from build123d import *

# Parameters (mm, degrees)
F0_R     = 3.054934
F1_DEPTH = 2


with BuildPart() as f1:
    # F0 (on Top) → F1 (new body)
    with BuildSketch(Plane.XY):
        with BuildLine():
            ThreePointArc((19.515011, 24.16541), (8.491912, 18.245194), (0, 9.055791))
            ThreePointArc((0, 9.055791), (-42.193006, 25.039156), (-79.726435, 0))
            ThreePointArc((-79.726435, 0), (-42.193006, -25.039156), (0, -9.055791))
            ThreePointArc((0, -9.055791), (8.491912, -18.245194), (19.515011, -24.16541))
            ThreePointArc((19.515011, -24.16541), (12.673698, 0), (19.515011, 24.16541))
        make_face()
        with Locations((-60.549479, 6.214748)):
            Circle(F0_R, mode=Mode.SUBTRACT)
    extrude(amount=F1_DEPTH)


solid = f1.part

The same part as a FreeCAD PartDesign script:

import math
import FreeCAD as App
import Part
import Sketcher
from FreeCAD import Vector
Q = App.Units.Quantity

doc = App.newDocument("Part")
body = doc.addObject("PartDesign::Body", "Body")

# Sketch on XY plane
sketch1 = body.newObject("Sketcher::SketchObject", "Sketch")
sketch1.AttachmentSupport = (doc.getObject("XY_Plane"), [""])
sketch1.MapMode = "FlatFace"
sketch1.addGeometry([
    Part.ArcOfCircle(Part.Circle(Vector(31.7, -11.7, 0), Vector(0, 0, 1), 37.9), math.radians(109), math.radians(147)),  # 0
    Part.ArcOfCircle(Part.Circle(Vector(-36.6, -24, 0), Vector(0, 0, 1), 49.3), math.radians(42), math.radians(151)),  # 1
    Part.ArcOfCircle(Part.Circle(Vector(-36.6, 24, 0), Vector(0, 0, 1), 49.3), math.radians(-151), math.radians(-42)),  # 2
    Part.ArcOfCircle(Part.Circle(Vector(31.7, 11.7, 0), Vector(0, 0, 1), 37.9), math.radians(-147), math.radians(-109)),  # 3
    Part.ArcOfCircle(Part.Circle(Vector(58.8, 0, 0), Vector(0, 0, 1), 46.1), math.radians(148), math.radians(212)),  # 4
    Part.Circle(Vector(-60.5, 6.2, 0), Vector(0, 0, 1), 3.1),  # 5
], False)
sketch1.addConstraint([
    Sketcher.Constraint("Coincident", 0, 2, 1, 1),
    Sketcher.Constraint("Coincident", 1, 2, 2, 1),
    Sketcher.Constraint("Coincident", 2, 2, 3, 1),
    Sketcher.Constraint("Coincident", 3, 2, 4, 2),
    Sketcher.Constraint("Coincident", 4, 1, 0, 1),
    Sketcher.Constraint("Equal", 1, 2),
    Sketcher.Constraint("Equal", 0, 3),
    Sketcher.Constraint("Symmetric", 0, 2, 2, 2, -1, 1),
    Sketcher.Constraint("Symmetric", 1, 3, 2, 3, -1),
    Sketcher.Constraint("Symmetric", 3, 2, 4, 1, -1),
    Sketcher.Constraint("Diameter", 5, Q("6.109868 mm")),
    Sketcher.Constraint("Radius", 0, Q("37.865727 mm")),
    Sketcher.Constraint("Radius", 1, Q("49.307336 mm")),
    Sketcher.Constraint("Radius", 4, Q("46.100113 mm")),
    Sketcher.Constraint("DistanceY", 1, 3, 2, 3, Q("47.9063 mm")),
    Sketcher.Constraint("DistanceY", 1, 3, 5, 3, Q("30.167898 mm")),
    Sketcher.Constraint("DistanceY", 3, 2, 0, 2, Q("33.221201 mm")),
    Sketcher.Constraint("DistanceX", 3, 2, 4, 3, Q("39.2588 mm")),
    Sketcher.Constraint("DistanceX", -1, 1, 4, 3, Q("58.773811 mm")),
    Sketcher.Constraint("DistanceX", 5, 3, -1, 1, Q("60.549479 mm")),
])
pad1 = body.newObject("PartDesign::Pad", "Pad")
pad1.Profile = sketch1
pad1.Length = 2

doc.recompute()
